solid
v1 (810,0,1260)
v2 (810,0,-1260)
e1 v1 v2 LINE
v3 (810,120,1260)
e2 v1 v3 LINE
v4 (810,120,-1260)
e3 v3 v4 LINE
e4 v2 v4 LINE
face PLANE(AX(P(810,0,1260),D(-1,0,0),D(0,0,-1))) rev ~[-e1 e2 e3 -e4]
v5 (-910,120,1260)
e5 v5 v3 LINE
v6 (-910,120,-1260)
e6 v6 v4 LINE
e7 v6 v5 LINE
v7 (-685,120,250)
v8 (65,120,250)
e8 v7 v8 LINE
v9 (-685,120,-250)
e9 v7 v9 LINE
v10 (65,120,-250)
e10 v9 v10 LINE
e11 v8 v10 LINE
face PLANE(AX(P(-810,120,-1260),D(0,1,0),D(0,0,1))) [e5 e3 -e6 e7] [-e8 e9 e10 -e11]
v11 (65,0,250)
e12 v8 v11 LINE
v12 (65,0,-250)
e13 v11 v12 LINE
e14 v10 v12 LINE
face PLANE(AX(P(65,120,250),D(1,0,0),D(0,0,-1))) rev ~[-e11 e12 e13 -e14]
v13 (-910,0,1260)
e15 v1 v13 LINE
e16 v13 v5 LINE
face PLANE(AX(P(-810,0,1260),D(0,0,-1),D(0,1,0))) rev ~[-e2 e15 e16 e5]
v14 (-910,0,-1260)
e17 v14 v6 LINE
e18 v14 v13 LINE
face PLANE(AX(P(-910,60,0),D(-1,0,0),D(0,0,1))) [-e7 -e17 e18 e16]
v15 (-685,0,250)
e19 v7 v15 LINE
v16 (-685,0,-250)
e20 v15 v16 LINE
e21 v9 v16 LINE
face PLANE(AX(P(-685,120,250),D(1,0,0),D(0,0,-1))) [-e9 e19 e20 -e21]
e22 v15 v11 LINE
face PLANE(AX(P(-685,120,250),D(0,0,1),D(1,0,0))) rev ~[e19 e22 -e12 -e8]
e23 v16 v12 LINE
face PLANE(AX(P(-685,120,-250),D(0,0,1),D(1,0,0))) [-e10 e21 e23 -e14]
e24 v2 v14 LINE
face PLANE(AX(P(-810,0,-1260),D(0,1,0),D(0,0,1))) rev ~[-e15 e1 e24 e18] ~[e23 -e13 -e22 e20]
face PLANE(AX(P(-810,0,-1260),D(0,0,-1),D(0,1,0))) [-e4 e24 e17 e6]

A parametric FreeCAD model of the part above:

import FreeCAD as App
import Part
import Sketcher
Q = App.Units.Quantity

doc = App.newDocument("Part")
params = doc.addObject("Spreadsheet::Sheet", "Params")
for row, (alias, value) in enumerate([
    ("sketch1_width", "1620 mm"),
    ("sketch1_height", "2520 mm"),
    ("pad1_length", "120 mm"),
    ("sketch2_width", "750 mm"),
    ("sketch2_height", "500 mm"),
    ("pocket1_length", "120 mm"),
    ("sketch3_width", "120 mm"),
    ("sketch3_height", "2520 mm"),
    ("pad2_length", "100 mm"),
], start=1):
    params.set(f"A{row}", alias)
    params.set(f"B{row}", "=" + value)
    params.setAlias(f"B{row}", alias)

body = doc.addObject("PartDesign::Body", "Body")

sketch1 = doc.addObject("Sketcher::SketchObject", "Sketch")
body.addObject(sketch1)
sketch1.AttachmentSupport = (doc.XZ_Plane, [""])
sketch1.MapMode = "FlatFace"
sketch1.addGeometry([
    Part.LineSegment(App.Vector(-810, -1260, 0), App.Vector(-810, 1260, 0)),
    Part.LineSegment(App.Vector(-810, 1260, 0), App.Vector(810, 1260, 0)),
    Part.LineSegment(App.Vector(810, 1260, 0), App.Vector(810, -1260, 0)),
    Part.LineSegment(App.Vector(810, -1260, 0), App.Vector(-810, -1260, 0)),
], False)
sketch1.addConstraint([
    Sketcher.Constraint("Coincident", 0, 2, 1, 1),
    Sketcher.Constraint("Coincident", 1, 2, 2, 1),
    Sketcher.Constraint("Coincident", 2, 2, 3, 1),
    Sketcher.Constraint("Coincident", 3, 2, 0, 1),
    Sketcher.Constraint("Vertical", 0),
    Sketcher.Constraint("Horizontal", 1),
    Sketcher.Constraint("Vertical", 2),
    Sketcher.Constraint("Horizontal", 3),
    Sketcher.Constraint("Symmetric", 0, 2, 2, 2, -1, 1),
    Sketcher.Constraint("DistanceX", 1, 1, 1, 2, Q("1620 mm")),
    Sketcher.Constraint("DistanceY", 0, 1, 0, 2, Q("2520 mm")),
])
sketch1.setExpression("Constraints[9]", "Params.sketch1_width")
sketch1.setExpression("Constraints[10]", "Params.sketch1_height")
pad1 = doc.addObject("PartDesign::Pad", "Pad")
body.addObject(pad1)
pad1.Profile = sketch1
pad1.setExpression("Length", "Params.pad1_length")
pad1.Reversed = True

sketch2 = doc.addObject("Sketcher::SketchObject", "Sketch001")
body.addObject(sketch2)
sketch2.AttachmentSupport = (doc.XZ_Plane, [""])
sketch2.MapMode = "FlatFace"
sketch2.AttachmentOffset = App.Placement(App.Vector(0, 0, -120), App.Rotation())
sketch2.addGeometry([
    Part.LineSegment(App.Vector(-685, -250, 0), App.Vector(-685, 250, 0)),
    Part.LineSegment(App.Vector(-685, 250, 0), App.Vector(65, 250, 0)),
    Part.LineSegment(App.Vector(65, 250, 0), App.Vector(65, -250, 0)),
    Part.LineSegment(App.Vector(65, -250, 0), App.Vector(-685, -250, 0)),
], False)
sketch2.addConstraint([
    Sketcher.Constraint("Coincident", 0, 2, 1, 1),
    Sketcher.Constraint("Coincident", 1, 2, 2, 1),
    Sketcher.Constraint("Coincident", 2, 2, 3, 1),
    Sketcher.Constraint("Coincident", 3, 2, 0, 1),
    Sketcher.Constraint("Vertical", 0),
    Sketcher.Constraint("Horizontal", 1),
    Sketcher.Constraint("Vertical", 2),
    Sketcher.Constraint("Horizontal", 3),
    Sketcher.Constraint("DistanceX", 1, 1, 1, 2, Q("750 mm")),
    Sketcher.Constraint("DistanceY", 0, 1, 0, 2, Q("500 mm")),
    Sketcher.Constraint("DistanceX", 0, 2, -1, 1, Q("685 mm")),
    Sketcher.Constraint("DistanceY", -1, 1, 0, 2, Q("250 mm")),
])
sketch2.setExpression("Constraints[8]", "Params.sketch2_width")
sketch2.setExpression("Constraints[9]", "Params.sketch2_height")
pocket1 = doc.addObject("PartDesign::Pocket", "Pocket")
body.addObject(pocket1)
pocket1.Profile = sketch2
pocket1.setExpression("Length", "Params.pocket1_length")
pocket1.Reversed = True

sketch3 = doc.addObject("Sketcher::SketchObject", "Sketch002")
body.addObject(sketch3)
sketch3.AttachmentSupport = (doc.YZ_Plane, [""])
sketch3.MapMode = "FlatFace"
sketch3.AttachmentOffset = App.Placement(App.Vector(0, 0, -810), App.Rotation())
sketch3.addGeometry([
    Part.LineSegment(App.Vector(120, -1260, 0), App.Vector(0, -1260, 0)),
    Part.LineSegment(App.Vector(0, -1260, 0), App.Vector(0, 1260, 0)),
    Part.LineSegment(App.Vector(0, 1260, 0), App.Vector(120, 1260, 0)),
    Part.LineSegment(App.Vector(120, 1260, 0), App.Vector(120, -1260, 0)),
], False)
sketch3.addConstraint([
    Sketcher.Constraint("Coincident", 0, 2, 1, 1),
    Sketcher.Constraint("Coincident", 1, 2, 2, 1),
    Sketcher.Constraint("Coincident", 2, 2, 3, 1),
    Sketcher.Constraint("Coincident", 3, 2, 0, 1),
    Sketcher.Constraint("Horizontal", 0),
    Sketcher.Constraint("Vertical", 1),
    Sketcher.Constraint("Horizontal", 2),
    Sketcher.Constraint("Vertical", 3),
    Sketcher.Constraint("Symmetric", 0, 2, 1, 2, -1, 1),
    Sketcher.Constraint("DistanceX", 0, 2, 0, 1, Q("120 mm")),
    Sketcher.Constraint("DistanceY", 1, 1, 1, 2, Q("2520 mm")),
])
sketch3.setExpression("Constraints[9]", "Params.sketch3_width")
sketch3.setExpression("Constraints[10]", "Params.sketch3_height")
pad2 = doc.addObject("PartDesign::Pad", "Pad001")
body.addObject(pad2)
pad2.Profile = sketch3
pad2.setExpression("Length", "Params.pad2_length")
pad2.Reversed = True

doc.recompute()
